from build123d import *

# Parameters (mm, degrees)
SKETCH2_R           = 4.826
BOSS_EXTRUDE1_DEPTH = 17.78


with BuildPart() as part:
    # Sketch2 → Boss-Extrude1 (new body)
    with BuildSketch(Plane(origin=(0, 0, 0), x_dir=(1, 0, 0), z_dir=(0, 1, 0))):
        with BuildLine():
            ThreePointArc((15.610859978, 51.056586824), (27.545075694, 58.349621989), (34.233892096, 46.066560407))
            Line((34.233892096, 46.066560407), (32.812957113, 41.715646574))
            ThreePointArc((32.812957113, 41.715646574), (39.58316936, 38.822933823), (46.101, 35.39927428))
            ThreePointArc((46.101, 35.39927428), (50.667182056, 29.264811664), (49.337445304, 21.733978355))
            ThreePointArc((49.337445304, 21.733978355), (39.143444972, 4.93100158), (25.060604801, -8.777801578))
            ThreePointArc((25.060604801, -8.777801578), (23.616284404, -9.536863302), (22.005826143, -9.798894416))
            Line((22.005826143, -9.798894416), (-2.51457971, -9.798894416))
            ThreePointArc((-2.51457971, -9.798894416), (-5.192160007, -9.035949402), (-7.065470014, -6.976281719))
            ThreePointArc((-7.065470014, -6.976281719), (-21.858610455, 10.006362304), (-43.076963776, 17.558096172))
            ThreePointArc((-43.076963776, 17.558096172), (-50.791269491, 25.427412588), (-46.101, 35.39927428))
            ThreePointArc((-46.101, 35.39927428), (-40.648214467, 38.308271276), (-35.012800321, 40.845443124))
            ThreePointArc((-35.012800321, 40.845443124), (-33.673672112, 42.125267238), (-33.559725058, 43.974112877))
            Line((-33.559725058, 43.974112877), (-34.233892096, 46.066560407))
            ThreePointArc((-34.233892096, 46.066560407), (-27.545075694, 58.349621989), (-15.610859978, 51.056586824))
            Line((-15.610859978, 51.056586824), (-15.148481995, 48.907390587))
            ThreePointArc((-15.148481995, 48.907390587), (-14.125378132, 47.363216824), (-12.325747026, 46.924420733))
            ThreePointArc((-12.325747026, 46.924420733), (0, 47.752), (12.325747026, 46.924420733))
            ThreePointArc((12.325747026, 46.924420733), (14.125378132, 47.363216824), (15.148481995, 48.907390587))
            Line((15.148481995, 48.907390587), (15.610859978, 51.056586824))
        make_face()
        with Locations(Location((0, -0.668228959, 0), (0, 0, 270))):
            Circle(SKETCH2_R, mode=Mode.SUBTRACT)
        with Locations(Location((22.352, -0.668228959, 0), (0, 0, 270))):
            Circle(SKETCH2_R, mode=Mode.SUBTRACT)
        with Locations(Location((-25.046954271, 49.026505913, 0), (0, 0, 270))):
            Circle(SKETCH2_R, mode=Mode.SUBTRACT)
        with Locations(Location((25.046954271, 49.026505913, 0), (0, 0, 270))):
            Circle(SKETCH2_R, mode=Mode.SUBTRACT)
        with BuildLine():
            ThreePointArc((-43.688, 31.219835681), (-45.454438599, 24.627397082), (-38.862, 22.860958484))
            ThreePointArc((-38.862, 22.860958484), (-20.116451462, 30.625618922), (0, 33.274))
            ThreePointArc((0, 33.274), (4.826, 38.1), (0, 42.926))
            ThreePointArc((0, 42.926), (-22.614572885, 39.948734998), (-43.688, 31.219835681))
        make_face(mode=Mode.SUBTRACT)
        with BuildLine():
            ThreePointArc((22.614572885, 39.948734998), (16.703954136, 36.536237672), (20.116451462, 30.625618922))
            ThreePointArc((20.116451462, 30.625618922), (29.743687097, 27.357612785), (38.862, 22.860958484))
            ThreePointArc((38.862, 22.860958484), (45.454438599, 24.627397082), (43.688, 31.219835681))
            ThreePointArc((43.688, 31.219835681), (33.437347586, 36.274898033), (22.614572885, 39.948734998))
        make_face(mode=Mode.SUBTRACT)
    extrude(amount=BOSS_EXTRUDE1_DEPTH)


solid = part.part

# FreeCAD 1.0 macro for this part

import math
import FreeCAD as App
import Part
import Sketcher
from FreeCAD import Vector
Q = App.Units.Quantity

doc = App.newDocument("Part")
body = doc.addObject("PartDesign::Body", "Body")

# Sketch on XZ plane
sketch1 = doc.addObject("Sketcher::SketchObject", "Sketch")
body.addObject(sketch1)
sketch1.AttachmentSupport = (doc.XZ_Plane, [""])
sketch1.MapMode = "FlatFace"
sketch1.addGeometry([
    Part.ArcOfCircle(Part.Circle(Vector(25, -49, 0), Vector(0, 0, 1), 9.7), math.radians(-168), math.radians(18)),  # 0
    Part.LineSegment(Vector(15.6, -51.1, 0), Vector(15.1, -48.9, 0)),  # 1
    Part.ArcOfCircle(Part.Circle(Vector(12.7, -49.4, 0), Vector(0, 0, 1), 2.5), math.radians(12), math.radians(98)),  # 2
    Part.ArcOfCircle(Part.Circle(Vector(0, 44.5, 0), Vector(0, 0, 1), 92.2), math.radians(-97.68), math.radians(-82.32)),  # 3
    Part.ArcOfCircle(Part.Circle(Vector(-12.7, -49.4, 0), Vector(0, 0, 1), 2.5), math.radians(82), math.radians(168)),  # 4
    Part.LineSegment(Vector(-15.1, -48.9, 0), Vector(-15.6, -51.1, 0)),  # 5
    Part.ArcOfCircle(Part.Circle(Vector(-25, -49, 0), Vector(0, 0, 1), 9.7), math.radians(162), math.radians(348)),  # 6
    Part.LineSegment(Vector(-34.2, -46.1, 0), Vector(-33.6, -44, 0)),  # 7
    Part.ArcOfCircle(Part.Circle(Vector(-36, -43.2, 0), Vector(0, 0, 1), 2.5), math.radians(-18), math.radians(68)),  # 8
    Part.ArcOfCircle(Part.Circle(Vector(0, 44.5, 0), Vector(0, 0, 1), 92.2), math.radians(-120), math.radians(-112.32)),  # 9
    Part.ArcOfCircle(Part.Circle(Vector(-41.3, -27, 0), Vector(0, 0, 1), 9.7), math.radians(101), math.radians(240)),  # 10
    Part.ArcOfCircle(Part.Circle(Vector(-46.9, 26.7, 0), Vector(0, 0, 1), 44.4), math.radians(-85), math.radians(-26)),  # 11
    Part.ArcOfCircle(Part.Circle(Vector(-2.5, 4.7, 0), Vector(0, 0, 1), 5.1), math.radians(90), math.radians(154)),  # 12
    Part.LineSegment(Vector(-2.5, 9.8, 0), Vector(22, 9.8, 0)),  # 13
    Part.ArcOfCircle(Part.Circle(Vector(22, 4.7, 0), Vector(0, 0, 1), 5.1), math.radians(53), math.radians(90)),  # 14
    Part.ArcOfCircle(Part.Circle(Vector(-21.7, -53.3, 0), Vector(0, 0, 1), 77.7), math.radians(24), math.radians(53)),  # 15
    Part.ArcOfCircle(Part.Circle(Vector(41.3, -27, 0), Vector(0, 0, 1), 9.7), math.radians(-60), math.radians(33)),  # 16
    Part.ArcOfCircle(Part.Circle(Vector(0, 44.4, 0), Vector(0, 0, 1), 92.2), math.radians(-69.15), math.radians(-60)),  # 17
    Part.LineSegment(Vector(32.8, -41.7, 0), Vector(34.2, -46.1, 0)),  # 18
    Part.Circle(Vector(22.4, 0.7, 0), Vector(0, 0, 1), 4.8),  # 19
    Part.Circle(Vector(0, 0.7, 0), Vector(0, 0, 1), 4.8),  # 20
    Part.ArcOfCircle(Part.Circle(Vector(0, 44.4, 0), Vector(0, 0, 1), 87.4), math.radians(-75), math.radians(-60)),  # 21
    Part.ArcOfCircle(Part.Circle(Vector(41.3, -27, 0), Vector(0, 0, 1), 4.8), math.radians(-60), math.radians(120)),  # 22
    Part.ArcOfCircle(Part.Circle(Vector(0, 44.4, 0), Vector(0, 0, 1), 77.7), math.radians(-75), math.radians(-60)),  # 23
    Part.ArcOfCircle(Part.Circle(Vector(21.4, -35.3, 0), Vector(0, 0, 1), 4.8), math.radians(105), math.radians(285)),  # 24
    Part.Circle(Vector(25, -49, 0), Vector(0, 0, 1), 4.8),  # 25
    Part.ArcOfCircle(Part.Circle(Vector(0, 44.4, 0), Vector(0, 0, 1), 87.4), math.radians(-120), math.radians(-90)),  # 26
    Part.ArcOfCircle(Part.Circle(Vector(0, -38.1, 0), Vector(0, 0, 1), 4.8), math.radians(-90), math.radians(90)),  # 27
    Part.ArcOfCircle(Part.Circle(Vector(0, 44.5, 0), Vector(0, 0, 1), 77.7), math.radians(-120), math.radians(-90)),  # 28
    Part.ArcOfCircle(Part.Circle(Vector(-41.3, -27, 0), Vector(0, 0, 1), 4.8), math.radians(60), math.radians(240)),  # 29
    Part.Circle(Vector(-25, -49, 0), Vector(0, 0, 1), 4.8),  # 30
], False)
sketch1.addConstraint([
    Sketcher.Constraint("Tangent", 0, 1, 1, 1),
    Sketcher.Constraint("Tangent", 1, 2, 2, 1),
    Sketcher.Constraint("Tangent", 2, 2, 3, 2),
    Sketcher.Constraint("Tangent", 3, 1, 4, 1),
    Sketcher.Constraint("Tangent", 4, 2, 5, 1),
    Sketcher.Constraint("Tangent", 5, 2, 6, 2),
    Sketcher.Constraint("Tangent", 6, 1, 7, 1),
    Sketcher.Constraint("Tangent", 7, 2, 8, 1),
    Sketcher.Constraint("Tangent", 8, 2, 9, 2),
    Sketcher.Constraint("Tangent", 9, 1, 10, 2),
    Sketcher.Constraint("Coincident", 10, 1, 11, 1),
    Sketcher.Constraint("Tangent", 11, 2, 12, 2),
    Sketcher.Constraint("Tangent", 12, 1, 13, 1),
    Sketcher.Constraint("Tangent", 13, 2, 14, 2),
    Sketcher.Constraint("Tangent", 14, 1, 15, 2),
    Sketcher.Constraint("Coincident", 15, 1, 16, 2),
    Sketcher.Constraint("Tangent", 16, 1, 17, 2),
    Sketcher.Constraint("Coincident", 17, 1, 18, 1),
    Sketcher.Constraint("Coincident", 18, 2, 0, 2),
    Sketcher.Constraint("Tangent", 21, 2, 22, 1),
    Sketcher.Constraint("Tangent", 22, 2, 23, 2),
    Sketcher.Constraint("Tangent", 23, 1, 24, 1),
    Sketcher.Constraint("Tangent", 24, 2, 21, 1),
    Sketcher.Constraint("Tangent", 26, 2, 27, 1),
    Sketcher.Constraint("Tangent", 27, 2, 28, 2),
    Sketcher.Constraint("Tangent", 28, 1, 29, 1),
    Sketcher.Constraint("Tangent", 29, 2, 26, 1),
    Sketcher.Constraint("Horizontal", 13),
    Sketcher.Constraint("Coincident", 9, 3, 3, 3),
    Sketcher.Constraint("Coincident", 17, 3, 3, 3),
    Sketcher.Constraint("Coincident", 21, 3, 3, 3),
    Sketcher.Constraint("Coincident", 22, 3, 16, 3),
    Sketcher.Constraint("Coincident", 23, 3, 3, 3),
    Sketcher.Constraint("Coincident", 25, 3, 0, 3),
    Sketcher.Constraint("Coincident", 26, 3, 3, 3),
    Sketcher.Constraint("Coincident", 28, 3, 3, 3),
    Sketcher.Constraint("Coincident", 29, 3, 10, 3),
    Sketcher.Constraint("Coincident", 30, 3, 6, 3),
    Sketcher.Constraint("Equal", 2, 4),
    Sketcher.Constraint("Equal", 0, 6),
    Sketcher.Constraint("Equal", 4, 8),
    Sketcher.Constraint("Equal", 3, 9),
    Sketcher.Constraint("Equal", 6, 10),
    Sketcher.Constraint("Equal", 12, 14),
    Sketcher.Constraint("Equal", 10, 16),
    Sketcher.Constraint("Equal", 9, 17),
    Sketcher.Constraint("Equal", 19, 20),
    Sketcher.Constraint("Equal", 20, 22),
    Sketcher.Constraint("Equal", 15, 23),
    Sketcher.Constraint("Equal", 24, 25),
    Sketcher.Constraint("Equal", 21, 26),
    Sketcher.Constraint("Equal", 29, 30),
    Sketcher.Constraint("Symmetric", 2, 3, 4, 3, -2),
    Sketcher.Constraint("Symmetric", 0, 3, 6, 3, -2),
    Sketcher.Constraint("PointOnObject", 20, 3, -2),
    Sketcher.Constraint("PointOnObject", 27, 3, -2),
    Sketcher.Constraint("Horizontal", 10, 3, 16, 3),
    Sketcher.Constraint("Horizontal", 19, 3, 20, 3),
    Sketcher.Constraint("Horizontal", 6, 1, 18, 2),
    Sketcher.Constraint("Equal", 5, 7),
    Sketcher.Constraint("Radius", 2, Q("0.1 in")),
    Sketcher.Constraint("Radius", 12, Q("0.2 in")),
    Sketcher.Constraint("Diameter", 19, Q("0.38 in")),
    Sketcher.Constraint("Radius", 0, Q("0.38 in")),
    Sketcher.Constraint("Radius", 3, Q("3.63 in")),
    Sketcher.Constraint("Radius", 11, Q("1.75 in")),
    Sketcher.Constraint("DistanceY", 27, 3, -1, 1, Q("1.5 in")),
    Sketcher.Constraint("DistanceX", -1, 1, 19, 3, Q("0.88 in")),
    Sketcher.Constraint("DistanceX", -1, 1, 21, 2, Q("1.72 in")),
    Sketcher.Constraint("DistanceY", -1, 1, 11, 3, Q("1.0523 in")),
    Sketcher.Constraint("DistanceX", -1, 1, 2, 3, Q("12.665299 mm")),
    Sketcher.Constraint("DistanceX", 8, 2, -1, 1, Q("35.0128 mm")),
    Sketcher.Constraint("DistanceY", -1, 1, 14, 1, Q("8.777802 mm")),
    Sketcher.Constraint("DistanceY", 0, 3, 14, 3, Q("53.7454 mm")),
    Sketcher.Constraint("DistanceY", 15, 3, 8, 3, Q("10.128298 mm")),
    Sketcher.Constraint("DistanceY", 29, 3, 10, 1, Q("9.482301 mm")),
    Sketcher.Constraint("DistanceY", 24, 3, 15, 1, Q("13.553199 mm")),
    Sketcher.Constraint("DistanceY", 2, 2, 23, 1, Q("16.298802 mm")),
    Sketcher.Constraint("DistanceY", -1, 1, 19, 3, Q("0.668229 mm")),
    Sketcher.Constraint("DistanceY", 0, 3, 17, 1, Q("7.310859 mm")),
])
pad1 = doc.addObject("PartDesign::Pad", "Pad")
body.addObject(pad1)
pad1.Profile = sketch1
pad1.Length = Q("0.7 in")
pad1.Reversed = True

doc.recompute()
